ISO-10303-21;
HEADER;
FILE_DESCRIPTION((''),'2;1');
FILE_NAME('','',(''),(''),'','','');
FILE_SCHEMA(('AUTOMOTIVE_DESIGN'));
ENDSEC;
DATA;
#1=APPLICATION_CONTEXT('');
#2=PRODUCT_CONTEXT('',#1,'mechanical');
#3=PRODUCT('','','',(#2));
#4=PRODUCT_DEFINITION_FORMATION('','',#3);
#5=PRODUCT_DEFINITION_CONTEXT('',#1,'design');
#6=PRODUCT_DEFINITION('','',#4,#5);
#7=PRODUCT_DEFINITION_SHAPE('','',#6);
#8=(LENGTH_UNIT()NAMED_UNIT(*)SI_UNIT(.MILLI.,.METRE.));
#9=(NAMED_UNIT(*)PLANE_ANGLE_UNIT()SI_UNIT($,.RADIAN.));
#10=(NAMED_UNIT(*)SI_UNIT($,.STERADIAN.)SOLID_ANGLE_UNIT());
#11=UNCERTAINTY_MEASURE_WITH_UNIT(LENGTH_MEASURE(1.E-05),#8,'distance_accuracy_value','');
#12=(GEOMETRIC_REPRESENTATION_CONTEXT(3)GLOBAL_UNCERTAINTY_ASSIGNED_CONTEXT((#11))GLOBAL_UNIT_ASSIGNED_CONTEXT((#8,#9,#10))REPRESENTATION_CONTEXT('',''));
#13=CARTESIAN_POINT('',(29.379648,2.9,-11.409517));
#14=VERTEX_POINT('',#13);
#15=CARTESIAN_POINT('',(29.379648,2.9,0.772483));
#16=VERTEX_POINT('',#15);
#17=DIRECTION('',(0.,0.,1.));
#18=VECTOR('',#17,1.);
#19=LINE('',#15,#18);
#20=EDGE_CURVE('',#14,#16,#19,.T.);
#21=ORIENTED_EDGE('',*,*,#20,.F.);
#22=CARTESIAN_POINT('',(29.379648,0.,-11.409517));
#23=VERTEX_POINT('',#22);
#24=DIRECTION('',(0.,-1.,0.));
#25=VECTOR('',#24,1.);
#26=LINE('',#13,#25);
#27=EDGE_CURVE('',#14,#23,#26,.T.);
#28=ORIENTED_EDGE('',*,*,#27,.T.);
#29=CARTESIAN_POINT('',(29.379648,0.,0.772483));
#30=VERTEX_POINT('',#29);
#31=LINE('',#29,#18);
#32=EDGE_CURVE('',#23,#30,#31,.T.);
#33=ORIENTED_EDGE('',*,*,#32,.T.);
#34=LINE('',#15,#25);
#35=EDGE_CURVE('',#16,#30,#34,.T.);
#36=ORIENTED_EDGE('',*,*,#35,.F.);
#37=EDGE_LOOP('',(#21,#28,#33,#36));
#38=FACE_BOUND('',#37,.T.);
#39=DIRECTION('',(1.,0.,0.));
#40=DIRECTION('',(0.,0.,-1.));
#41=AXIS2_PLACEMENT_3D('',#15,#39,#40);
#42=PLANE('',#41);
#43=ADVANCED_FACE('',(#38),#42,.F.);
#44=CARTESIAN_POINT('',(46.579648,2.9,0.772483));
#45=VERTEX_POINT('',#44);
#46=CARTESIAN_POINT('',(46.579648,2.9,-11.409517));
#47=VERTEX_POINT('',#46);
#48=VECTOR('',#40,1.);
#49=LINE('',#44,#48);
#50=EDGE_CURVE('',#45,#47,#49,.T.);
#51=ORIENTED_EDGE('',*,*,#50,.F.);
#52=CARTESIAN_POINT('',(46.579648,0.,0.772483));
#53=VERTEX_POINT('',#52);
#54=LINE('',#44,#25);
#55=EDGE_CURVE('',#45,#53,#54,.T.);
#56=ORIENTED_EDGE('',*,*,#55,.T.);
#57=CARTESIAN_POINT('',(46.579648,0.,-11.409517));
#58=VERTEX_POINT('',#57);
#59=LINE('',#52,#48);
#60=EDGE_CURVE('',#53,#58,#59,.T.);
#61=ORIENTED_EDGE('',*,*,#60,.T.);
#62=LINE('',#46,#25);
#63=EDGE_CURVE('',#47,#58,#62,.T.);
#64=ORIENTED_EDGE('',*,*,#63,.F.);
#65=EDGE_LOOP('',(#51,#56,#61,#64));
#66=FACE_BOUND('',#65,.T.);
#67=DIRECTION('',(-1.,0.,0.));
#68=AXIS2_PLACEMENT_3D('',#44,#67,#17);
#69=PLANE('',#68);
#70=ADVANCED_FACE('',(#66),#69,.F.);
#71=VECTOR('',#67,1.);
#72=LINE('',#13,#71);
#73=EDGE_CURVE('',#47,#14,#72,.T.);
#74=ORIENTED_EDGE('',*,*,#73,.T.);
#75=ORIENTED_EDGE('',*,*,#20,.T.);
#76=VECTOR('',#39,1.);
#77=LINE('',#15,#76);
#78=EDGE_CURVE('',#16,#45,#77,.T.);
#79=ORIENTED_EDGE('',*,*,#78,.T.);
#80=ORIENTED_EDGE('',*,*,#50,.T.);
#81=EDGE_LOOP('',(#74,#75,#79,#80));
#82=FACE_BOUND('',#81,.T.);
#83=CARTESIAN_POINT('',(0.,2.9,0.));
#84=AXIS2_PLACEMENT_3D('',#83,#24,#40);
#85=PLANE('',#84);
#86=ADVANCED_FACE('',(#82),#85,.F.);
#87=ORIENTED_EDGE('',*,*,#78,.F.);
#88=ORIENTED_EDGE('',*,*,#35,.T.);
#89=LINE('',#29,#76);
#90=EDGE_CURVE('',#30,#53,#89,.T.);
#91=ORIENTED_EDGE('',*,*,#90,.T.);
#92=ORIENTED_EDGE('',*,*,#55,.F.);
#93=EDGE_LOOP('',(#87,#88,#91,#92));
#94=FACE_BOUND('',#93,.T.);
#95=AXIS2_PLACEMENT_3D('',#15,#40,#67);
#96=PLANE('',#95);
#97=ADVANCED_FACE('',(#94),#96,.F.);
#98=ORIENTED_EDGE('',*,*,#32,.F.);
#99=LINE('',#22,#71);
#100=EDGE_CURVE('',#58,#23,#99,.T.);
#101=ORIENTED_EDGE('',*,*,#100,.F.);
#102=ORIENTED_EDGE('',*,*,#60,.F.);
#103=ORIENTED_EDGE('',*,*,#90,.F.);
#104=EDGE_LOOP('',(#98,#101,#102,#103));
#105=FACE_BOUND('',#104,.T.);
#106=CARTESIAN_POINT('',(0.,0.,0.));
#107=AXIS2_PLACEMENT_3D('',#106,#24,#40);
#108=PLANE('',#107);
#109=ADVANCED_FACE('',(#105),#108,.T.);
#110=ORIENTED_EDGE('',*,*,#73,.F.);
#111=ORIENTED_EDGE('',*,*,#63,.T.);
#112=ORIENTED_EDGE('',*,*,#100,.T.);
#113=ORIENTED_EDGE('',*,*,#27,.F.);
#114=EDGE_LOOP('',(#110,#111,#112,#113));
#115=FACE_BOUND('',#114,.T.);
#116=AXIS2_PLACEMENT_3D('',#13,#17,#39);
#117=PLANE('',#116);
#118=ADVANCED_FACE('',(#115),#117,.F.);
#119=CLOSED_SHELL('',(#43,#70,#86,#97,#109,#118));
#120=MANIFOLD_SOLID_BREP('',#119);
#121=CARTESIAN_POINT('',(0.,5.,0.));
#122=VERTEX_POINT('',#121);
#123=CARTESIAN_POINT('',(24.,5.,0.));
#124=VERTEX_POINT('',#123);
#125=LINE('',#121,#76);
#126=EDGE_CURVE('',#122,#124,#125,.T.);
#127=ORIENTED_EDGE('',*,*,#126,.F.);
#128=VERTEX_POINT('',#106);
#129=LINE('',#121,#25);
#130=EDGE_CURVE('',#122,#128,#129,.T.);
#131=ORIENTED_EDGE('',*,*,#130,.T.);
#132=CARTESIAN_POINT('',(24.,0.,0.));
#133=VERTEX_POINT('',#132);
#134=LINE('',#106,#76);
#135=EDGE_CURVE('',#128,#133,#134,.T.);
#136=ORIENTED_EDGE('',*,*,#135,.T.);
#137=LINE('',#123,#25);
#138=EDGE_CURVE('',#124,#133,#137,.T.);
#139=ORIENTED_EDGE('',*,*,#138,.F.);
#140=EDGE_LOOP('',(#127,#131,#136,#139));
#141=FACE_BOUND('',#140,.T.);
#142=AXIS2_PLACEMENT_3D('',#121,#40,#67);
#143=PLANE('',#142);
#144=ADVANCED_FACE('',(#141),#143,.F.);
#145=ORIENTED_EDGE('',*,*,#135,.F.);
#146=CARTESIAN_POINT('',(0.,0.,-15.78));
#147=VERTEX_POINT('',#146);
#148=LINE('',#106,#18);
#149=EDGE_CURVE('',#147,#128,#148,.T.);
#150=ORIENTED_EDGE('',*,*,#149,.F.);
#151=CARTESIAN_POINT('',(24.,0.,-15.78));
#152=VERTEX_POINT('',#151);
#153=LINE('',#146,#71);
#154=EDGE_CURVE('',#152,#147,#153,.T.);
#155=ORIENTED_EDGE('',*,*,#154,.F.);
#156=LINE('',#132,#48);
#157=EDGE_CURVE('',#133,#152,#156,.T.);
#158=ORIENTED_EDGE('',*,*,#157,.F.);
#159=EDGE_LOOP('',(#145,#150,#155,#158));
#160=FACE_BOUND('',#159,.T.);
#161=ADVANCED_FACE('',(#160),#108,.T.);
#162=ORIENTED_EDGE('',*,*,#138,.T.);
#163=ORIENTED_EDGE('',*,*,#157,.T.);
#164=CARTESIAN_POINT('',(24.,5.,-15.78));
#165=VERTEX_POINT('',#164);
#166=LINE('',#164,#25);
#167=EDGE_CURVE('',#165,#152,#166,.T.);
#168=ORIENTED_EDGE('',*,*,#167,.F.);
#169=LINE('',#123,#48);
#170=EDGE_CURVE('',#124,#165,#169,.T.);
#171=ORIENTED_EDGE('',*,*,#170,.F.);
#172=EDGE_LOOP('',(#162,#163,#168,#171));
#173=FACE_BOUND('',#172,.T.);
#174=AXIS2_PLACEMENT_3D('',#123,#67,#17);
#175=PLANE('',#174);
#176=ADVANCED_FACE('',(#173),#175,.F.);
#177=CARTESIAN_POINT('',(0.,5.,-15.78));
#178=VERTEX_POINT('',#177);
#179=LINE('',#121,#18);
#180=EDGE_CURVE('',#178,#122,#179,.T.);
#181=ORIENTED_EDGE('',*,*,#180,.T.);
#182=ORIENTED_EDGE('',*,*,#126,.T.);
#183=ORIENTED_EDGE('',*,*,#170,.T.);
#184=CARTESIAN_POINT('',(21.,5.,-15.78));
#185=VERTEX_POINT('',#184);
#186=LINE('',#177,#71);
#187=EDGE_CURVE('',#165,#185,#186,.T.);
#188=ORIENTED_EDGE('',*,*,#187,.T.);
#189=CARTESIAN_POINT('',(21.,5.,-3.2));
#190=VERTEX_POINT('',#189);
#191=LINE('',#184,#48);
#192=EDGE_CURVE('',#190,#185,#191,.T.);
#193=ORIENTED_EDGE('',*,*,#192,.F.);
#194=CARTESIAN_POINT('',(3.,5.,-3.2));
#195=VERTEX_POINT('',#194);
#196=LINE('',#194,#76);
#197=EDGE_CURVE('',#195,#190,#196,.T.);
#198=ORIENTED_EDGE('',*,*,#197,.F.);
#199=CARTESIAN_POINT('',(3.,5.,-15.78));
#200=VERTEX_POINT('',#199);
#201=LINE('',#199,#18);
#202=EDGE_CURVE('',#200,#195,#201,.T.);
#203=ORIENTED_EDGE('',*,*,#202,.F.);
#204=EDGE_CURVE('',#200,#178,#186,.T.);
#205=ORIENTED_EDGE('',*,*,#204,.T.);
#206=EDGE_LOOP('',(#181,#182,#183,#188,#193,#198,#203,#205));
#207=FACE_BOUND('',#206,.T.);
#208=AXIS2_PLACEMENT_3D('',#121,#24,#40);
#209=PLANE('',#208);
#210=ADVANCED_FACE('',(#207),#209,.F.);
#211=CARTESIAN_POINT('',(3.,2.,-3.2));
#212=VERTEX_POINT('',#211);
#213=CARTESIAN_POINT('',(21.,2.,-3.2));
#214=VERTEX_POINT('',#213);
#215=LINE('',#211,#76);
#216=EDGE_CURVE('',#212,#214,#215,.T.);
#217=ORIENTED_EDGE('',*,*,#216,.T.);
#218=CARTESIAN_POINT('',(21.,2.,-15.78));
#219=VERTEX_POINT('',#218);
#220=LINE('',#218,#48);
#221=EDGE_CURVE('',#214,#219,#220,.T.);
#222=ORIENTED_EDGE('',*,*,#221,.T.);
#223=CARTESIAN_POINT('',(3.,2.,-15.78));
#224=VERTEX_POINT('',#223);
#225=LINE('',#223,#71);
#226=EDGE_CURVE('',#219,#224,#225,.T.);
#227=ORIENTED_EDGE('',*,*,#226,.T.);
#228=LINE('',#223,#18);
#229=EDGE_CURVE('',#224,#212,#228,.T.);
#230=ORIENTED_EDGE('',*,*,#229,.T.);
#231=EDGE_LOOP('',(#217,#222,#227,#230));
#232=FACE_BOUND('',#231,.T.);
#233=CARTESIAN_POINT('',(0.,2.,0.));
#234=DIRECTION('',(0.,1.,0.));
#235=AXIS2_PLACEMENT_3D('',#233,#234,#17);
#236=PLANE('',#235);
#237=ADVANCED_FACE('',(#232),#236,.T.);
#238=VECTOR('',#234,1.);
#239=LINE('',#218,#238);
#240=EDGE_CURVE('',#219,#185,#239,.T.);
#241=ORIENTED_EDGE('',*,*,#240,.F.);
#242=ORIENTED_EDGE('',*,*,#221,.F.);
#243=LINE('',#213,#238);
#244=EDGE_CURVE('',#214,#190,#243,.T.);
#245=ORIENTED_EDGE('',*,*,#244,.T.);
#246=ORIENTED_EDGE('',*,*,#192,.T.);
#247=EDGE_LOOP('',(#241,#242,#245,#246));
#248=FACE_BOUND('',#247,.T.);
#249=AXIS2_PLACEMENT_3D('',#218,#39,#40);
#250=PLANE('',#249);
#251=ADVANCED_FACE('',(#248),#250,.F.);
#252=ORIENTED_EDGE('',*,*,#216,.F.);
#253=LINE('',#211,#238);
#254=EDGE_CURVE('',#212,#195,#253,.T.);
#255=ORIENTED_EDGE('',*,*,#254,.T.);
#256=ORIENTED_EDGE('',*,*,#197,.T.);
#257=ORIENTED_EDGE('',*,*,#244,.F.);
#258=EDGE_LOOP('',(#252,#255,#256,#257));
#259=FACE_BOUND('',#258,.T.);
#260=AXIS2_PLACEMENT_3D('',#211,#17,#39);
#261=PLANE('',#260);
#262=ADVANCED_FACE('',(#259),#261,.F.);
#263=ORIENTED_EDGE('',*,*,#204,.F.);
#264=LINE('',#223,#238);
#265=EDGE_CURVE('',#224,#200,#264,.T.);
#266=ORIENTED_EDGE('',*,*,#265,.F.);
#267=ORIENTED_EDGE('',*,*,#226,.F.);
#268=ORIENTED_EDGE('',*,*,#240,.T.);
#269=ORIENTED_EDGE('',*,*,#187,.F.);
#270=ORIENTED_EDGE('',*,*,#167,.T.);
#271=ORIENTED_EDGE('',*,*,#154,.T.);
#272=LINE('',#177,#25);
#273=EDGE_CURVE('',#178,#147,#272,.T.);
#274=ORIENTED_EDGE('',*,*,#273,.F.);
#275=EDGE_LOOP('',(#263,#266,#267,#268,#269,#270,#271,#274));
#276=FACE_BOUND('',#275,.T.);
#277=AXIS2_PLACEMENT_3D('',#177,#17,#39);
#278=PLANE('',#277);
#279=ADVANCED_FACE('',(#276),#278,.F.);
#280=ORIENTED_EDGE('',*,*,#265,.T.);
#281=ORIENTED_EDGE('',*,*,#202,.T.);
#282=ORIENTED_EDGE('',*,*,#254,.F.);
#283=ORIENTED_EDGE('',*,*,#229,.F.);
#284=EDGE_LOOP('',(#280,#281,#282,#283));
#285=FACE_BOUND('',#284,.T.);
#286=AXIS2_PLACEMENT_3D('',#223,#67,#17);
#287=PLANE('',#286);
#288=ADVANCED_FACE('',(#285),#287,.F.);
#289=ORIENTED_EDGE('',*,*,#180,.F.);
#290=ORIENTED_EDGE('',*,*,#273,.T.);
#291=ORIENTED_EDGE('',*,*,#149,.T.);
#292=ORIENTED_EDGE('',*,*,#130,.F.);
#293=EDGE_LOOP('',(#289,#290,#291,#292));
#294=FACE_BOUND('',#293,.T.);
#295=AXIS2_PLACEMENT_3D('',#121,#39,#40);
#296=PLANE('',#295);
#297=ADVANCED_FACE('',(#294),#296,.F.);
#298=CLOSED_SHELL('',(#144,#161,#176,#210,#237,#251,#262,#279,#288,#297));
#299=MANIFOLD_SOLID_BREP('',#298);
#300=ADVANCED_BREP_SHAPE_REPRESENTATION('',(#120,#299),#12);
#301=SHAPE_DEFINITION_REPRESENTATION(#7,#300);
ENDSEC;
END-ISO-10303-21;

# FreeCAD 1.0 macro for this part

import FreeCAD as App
import Part
import Sketcher

V = App.Vector
Q = App.Units.Quantity

doc = App.newDocument("Part")
body = doc.addObject("PartDesign::Body", "Body")

# Sketch on XZ plane
sketch1 = doc.addObject("Sketcher::SketchObject", "Sketch")
body.addObject(sketch1)
sketch1.AttachmentSupport = (doc.XZ_Plane, [""])
sketch1.MapMode = "FlatFace"
sketch1.addGeometry([
    Part.LineSegment(V(0, -16, 0), V(0, 0, 0)),
    Part.LineSegment(V(0, 0, 0), V(24, 0, 0)),
    Part.LineSegment(V(24, 0, 0), V(24, -16, 0)),
    Part.LineSegment(V(24, -16, 0), V(0, -16, 0)),
], False)
sketch1.addConstraint([
    Sketcher.Constraint("Coincident", 0, 2, 1, 1),
    Sketcher.Constraint("Coincident", 1, 2, 2, 1),
    Sketcher.Constraint("Coincident", 2, 2, 3, 1),
    Sketcher.Constraint("Coincident", 3, 2, 0, 1),
    Sketcher.Constraint("Vertical", 0),
    Sketcher.Constraint("Horizontal", 1),
    Sketcher.Constraint("Vertical", 2),
    Sketcher.Constraint("Horizontal", 3),
    Sketcher.Constraint("Coincident", 0, 2, -1, 1),
    Sketcher.Constraint("DistanceX", 1, 1, 1, 2, Q("24 mm")),
    Sketcher.Constraint("DistanceY", 0, 1, 0, 2, Q("15.78 mm")),
])
pad1 = doc.addObject("PartDesign::Pad", "Pad")
body.addObject(pad1)
pad1.Profile = sketch1
pad1.Length = 5
pad1.Reversed = True

# Sketch on XZ plane
sketch2 = doc.addObject("Sketcher::SketchObject", "Sketch001")
body.addObject(sketch2)
sketch2.AttachmentSupport = (doc.XZ_Plane, [""])
sketch2.MapMode = "FlatFace"
sketch2.AttachmentOffset = App.Placement(V(0, 0, -5), App.Rotation())
sketch2.addGeometry([
    Part.LineSegment(V(3, -16, 0), V(3, -3, 0)),
    Part.LineSegment(V(3, -3, 0), V(21, -3, 0)),
    Part.LineSegment(V(21, -3, 0), V(21, -16, 0)),
    Part.LineSegment(V(21, -16, 0), V(3, -16, 0)),
], False)
sketch2.addConstraint([
    Sketcher.Constraint("Coincident", 0, 2, 1, 1),
    Sketcher.Constraint("Coincident", 1, 2, 2, 1),
    Sketcher.Constraint("Coincident", 2, 2, 3, 1),
    Sketcher.Constraint("Coincident", 3, 2, 0, 1),
    Sketcher.Constraint("Vertical", 0),
    Sketcher.Constraint("Horizontal", 1),
    Sketcher.Constraint("Vertical", 2),
    Sketcher.Constraint("Horizontal", 3),
    Sketcher.Constraint("DistanceX", 1, 1, 1, 2, Q("18 mm")),
    Sketcher.Constraint("DistanceX", -1, 1, 0, 2, Q("3 mm")),
    Sketcher.Constraint("DistanceY", 0, 1, 0, 2, Q("12.58 mm")),
    Sketcher.Constraint("DistanceY", 0, 2, -1, 1, Q("3.2 mm")),
])
pocket1 = doc.addObject("PartDesign::Pocket", "Pocket")
body.addObject(pocket1)
pocket1.Profile = sketch2
pocket1.Length = 3
pocket1.Reversed = True
body2 = doc.addObject("PartDesign::Body", "Body001")

# Sketch on XZ plane
sketch3 = doc.addObject("Sketcher::SketchObject", "Sketch002")
body2.addObject(sketch3)
sketch3.AttachmentSupport = (doc.getObject("XZ_Plane001"), [""])
sketch3.MapMode = "FlatFace"
sketch3.addGeometry([
    Part.LineSegment(V(29, -11, 0), V(29, 1, 0)),
    Part.LineSegment(V(29, 1, 0), V(47, 1, 0)),
    Part.LineSegment(V(47, 1, 0), V(47, -11, 0)),
    Part.LineSegment(V(47, -11, 0), V(29, -11, 0)),
], False)
sketch3.addConstraint([
    Sketcher.Constraint("Coincident", 0, 2, 1, 1),
    Sketcher.Constraint("Coincident", 1, 2, 2, 1),
    Sketcher.Constraint("Coincident", 2, 2, 3, 1),
    Sketcher.Constraint("Coincident", 3, 2, 0, 1),
    Sketcher.Constraint("Vertical", 0),
    Sketcher.Constraint("Horizontal", 1),
    Sketcher.Constraint("Vertical", 2),
    Sketcher.Constraint("Horizontal", 3),
    Sketcher.Constraint("DistanceX", 1, 1, 1, 2, Q("17.2 mm")),
    Sketcher.Constraint("DistanceY", 0, 1, 0, 2, Q("12.182 mm")),
    Sketcher.Constraint("DistanceX", -1, 1, 0, 2, Q("29.379648 mm")),
    Sketcher.Constraint("DistanceY", -1, 1, 0, 2, Q("0.772483 mm")),
])
pad2 = doc.addObject("PartDesign::Pad", "Pad001")
body2.addObject(pad2)
pad2.Profile = sketch3
pad2.Length = 2.9
pad2.Reversed = True

doc.recompute()
